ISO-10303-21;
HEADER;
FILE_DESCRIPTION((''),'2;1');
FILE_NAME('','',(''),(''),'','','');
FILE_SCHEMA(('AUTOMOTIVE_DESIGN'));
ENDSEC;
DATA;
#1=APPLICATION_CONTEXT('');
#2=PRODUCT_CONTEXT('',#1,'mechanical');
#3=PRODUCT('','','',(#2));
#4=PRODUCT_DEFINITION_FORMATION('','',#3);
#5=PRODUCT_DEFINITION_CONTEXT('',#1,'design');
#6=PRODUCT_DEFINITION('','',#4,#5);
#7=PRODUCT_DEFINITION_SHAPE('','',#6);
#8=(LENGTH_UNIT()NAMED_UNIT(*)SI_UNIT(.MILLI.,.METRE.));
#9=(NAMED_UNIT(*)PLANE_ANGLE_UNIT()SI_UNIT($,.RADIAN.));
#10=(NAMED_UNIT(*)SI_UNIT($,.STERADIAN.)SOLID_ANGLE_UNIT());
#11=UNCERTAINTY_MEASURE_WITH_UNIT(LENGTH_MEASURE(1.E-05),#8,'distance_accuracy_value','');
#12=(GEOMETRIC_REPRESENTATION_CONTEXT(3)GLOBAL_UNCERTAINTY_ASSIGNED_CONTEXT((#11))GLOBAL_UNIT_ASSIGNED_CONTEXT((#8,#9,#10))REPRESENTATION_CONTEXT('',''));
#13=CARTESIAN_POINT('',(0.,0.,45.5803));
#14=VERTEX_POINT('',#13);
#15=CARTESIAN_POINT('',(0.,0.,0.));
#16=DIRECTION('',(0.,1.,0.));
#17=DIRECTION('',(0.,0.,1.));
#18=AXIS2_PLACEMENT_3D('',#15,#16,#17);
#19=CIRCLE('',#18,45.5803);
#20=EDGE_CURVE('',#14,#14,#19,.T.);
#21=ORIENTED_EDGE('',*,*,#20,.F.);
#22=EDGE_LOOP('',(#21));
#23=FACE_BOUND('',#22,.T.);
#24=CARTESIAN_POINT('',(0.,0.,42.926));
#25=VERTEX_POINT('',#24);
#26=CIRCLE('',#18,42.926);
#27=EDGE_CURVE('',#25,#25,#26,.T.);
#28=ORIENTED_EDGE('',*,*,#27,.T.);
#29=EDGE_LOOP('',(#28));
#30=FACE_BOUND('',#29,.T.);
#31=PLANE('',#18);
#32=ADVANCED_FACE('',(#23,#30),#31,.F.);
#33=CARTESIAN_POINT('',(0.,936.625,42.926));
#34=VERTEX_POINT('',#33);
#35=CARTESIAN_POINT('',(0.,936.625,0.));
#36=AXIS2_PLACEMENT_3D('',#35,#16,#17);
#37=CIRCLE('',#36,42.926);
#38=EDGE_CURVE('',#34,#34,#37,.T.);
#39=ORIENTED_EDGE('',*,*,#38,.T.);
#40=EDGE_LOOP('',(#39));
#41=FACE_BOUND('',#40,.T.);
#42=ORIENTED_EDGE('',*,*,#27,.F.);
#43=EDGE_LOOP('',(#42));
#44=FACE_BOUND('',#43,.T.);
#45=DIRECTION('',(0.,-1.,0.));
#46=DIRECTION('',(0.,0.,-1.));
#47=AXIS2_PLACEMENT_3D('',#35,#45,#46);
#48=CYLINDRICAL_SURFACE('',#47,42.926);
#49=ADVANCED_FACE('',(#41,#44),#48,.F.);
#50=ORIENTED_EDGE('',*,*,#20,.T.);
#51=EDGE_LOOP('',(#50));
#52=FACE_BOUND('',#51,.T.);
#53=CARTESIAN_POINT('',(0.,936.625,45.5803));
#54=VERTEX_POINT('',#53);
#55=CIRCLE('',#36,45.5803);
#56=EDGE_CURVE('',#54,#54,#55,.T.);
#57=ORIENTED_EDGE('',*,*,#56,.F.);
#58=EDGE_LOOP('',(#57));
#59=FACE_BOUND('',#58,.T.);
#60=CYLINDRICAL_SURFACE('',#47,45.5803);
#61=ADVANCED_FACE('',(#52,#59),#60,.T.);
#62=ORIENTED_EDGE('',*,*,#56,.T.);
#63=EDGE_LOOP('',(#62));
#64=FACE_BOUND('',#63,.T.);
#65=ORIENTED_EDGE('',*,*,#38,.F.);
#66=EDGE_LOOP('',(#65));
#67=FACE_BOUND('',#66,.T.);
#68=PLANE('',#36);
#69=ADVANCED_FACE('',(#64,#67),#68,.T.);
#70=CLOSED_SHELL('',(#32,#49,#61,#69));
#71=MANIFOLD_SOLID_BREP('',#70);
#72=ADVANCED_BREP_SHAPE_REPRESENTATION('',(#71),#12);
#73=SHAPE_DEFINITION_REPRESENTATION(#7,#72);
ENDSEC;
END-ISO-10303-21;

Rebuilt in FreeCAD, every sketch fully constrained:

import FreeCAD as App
import Part
import Sketcher

V = App.Vector
Q = App.Units.Quantity

doc = App.newDocument("Part")
body = doc.addObject("PartDesign::Body", "Body")

sketch1 = body.newObject("Sketcher::SketchObject", "Sketch")
sketch1.AttachmentSupport = (doc.getObject("XZ_Plane"), [""])
sketch1.MapMode = "FlatFace"
sketch1.addGeometry([
    Part.Circle(V(0, 0, 0), V(0, 0, 1), 46),
    Part.Circle(V(0, 0, 0), V(0, 0, 1), 43),
], False)
sketch1.addConstraint([
    Sketcher.Constraint("Coincident", 0, 3, -1, 1),
    Sketcher.Constraint("Coincident", 1, 3, -1, 1),
    Sketcher.Constraint("Diameter", 1, Q("3.38 in")),
    Sketcher.Constraint("Diameter", 0, Q("3.589 in")),
])
pad1 = body.newObject("PartDesign::Pad", "Pad")
pad1.Profile = sketch1
pad1.Length = Q("36.875 in")
pad1.Reversed = True

doc.recompute()
